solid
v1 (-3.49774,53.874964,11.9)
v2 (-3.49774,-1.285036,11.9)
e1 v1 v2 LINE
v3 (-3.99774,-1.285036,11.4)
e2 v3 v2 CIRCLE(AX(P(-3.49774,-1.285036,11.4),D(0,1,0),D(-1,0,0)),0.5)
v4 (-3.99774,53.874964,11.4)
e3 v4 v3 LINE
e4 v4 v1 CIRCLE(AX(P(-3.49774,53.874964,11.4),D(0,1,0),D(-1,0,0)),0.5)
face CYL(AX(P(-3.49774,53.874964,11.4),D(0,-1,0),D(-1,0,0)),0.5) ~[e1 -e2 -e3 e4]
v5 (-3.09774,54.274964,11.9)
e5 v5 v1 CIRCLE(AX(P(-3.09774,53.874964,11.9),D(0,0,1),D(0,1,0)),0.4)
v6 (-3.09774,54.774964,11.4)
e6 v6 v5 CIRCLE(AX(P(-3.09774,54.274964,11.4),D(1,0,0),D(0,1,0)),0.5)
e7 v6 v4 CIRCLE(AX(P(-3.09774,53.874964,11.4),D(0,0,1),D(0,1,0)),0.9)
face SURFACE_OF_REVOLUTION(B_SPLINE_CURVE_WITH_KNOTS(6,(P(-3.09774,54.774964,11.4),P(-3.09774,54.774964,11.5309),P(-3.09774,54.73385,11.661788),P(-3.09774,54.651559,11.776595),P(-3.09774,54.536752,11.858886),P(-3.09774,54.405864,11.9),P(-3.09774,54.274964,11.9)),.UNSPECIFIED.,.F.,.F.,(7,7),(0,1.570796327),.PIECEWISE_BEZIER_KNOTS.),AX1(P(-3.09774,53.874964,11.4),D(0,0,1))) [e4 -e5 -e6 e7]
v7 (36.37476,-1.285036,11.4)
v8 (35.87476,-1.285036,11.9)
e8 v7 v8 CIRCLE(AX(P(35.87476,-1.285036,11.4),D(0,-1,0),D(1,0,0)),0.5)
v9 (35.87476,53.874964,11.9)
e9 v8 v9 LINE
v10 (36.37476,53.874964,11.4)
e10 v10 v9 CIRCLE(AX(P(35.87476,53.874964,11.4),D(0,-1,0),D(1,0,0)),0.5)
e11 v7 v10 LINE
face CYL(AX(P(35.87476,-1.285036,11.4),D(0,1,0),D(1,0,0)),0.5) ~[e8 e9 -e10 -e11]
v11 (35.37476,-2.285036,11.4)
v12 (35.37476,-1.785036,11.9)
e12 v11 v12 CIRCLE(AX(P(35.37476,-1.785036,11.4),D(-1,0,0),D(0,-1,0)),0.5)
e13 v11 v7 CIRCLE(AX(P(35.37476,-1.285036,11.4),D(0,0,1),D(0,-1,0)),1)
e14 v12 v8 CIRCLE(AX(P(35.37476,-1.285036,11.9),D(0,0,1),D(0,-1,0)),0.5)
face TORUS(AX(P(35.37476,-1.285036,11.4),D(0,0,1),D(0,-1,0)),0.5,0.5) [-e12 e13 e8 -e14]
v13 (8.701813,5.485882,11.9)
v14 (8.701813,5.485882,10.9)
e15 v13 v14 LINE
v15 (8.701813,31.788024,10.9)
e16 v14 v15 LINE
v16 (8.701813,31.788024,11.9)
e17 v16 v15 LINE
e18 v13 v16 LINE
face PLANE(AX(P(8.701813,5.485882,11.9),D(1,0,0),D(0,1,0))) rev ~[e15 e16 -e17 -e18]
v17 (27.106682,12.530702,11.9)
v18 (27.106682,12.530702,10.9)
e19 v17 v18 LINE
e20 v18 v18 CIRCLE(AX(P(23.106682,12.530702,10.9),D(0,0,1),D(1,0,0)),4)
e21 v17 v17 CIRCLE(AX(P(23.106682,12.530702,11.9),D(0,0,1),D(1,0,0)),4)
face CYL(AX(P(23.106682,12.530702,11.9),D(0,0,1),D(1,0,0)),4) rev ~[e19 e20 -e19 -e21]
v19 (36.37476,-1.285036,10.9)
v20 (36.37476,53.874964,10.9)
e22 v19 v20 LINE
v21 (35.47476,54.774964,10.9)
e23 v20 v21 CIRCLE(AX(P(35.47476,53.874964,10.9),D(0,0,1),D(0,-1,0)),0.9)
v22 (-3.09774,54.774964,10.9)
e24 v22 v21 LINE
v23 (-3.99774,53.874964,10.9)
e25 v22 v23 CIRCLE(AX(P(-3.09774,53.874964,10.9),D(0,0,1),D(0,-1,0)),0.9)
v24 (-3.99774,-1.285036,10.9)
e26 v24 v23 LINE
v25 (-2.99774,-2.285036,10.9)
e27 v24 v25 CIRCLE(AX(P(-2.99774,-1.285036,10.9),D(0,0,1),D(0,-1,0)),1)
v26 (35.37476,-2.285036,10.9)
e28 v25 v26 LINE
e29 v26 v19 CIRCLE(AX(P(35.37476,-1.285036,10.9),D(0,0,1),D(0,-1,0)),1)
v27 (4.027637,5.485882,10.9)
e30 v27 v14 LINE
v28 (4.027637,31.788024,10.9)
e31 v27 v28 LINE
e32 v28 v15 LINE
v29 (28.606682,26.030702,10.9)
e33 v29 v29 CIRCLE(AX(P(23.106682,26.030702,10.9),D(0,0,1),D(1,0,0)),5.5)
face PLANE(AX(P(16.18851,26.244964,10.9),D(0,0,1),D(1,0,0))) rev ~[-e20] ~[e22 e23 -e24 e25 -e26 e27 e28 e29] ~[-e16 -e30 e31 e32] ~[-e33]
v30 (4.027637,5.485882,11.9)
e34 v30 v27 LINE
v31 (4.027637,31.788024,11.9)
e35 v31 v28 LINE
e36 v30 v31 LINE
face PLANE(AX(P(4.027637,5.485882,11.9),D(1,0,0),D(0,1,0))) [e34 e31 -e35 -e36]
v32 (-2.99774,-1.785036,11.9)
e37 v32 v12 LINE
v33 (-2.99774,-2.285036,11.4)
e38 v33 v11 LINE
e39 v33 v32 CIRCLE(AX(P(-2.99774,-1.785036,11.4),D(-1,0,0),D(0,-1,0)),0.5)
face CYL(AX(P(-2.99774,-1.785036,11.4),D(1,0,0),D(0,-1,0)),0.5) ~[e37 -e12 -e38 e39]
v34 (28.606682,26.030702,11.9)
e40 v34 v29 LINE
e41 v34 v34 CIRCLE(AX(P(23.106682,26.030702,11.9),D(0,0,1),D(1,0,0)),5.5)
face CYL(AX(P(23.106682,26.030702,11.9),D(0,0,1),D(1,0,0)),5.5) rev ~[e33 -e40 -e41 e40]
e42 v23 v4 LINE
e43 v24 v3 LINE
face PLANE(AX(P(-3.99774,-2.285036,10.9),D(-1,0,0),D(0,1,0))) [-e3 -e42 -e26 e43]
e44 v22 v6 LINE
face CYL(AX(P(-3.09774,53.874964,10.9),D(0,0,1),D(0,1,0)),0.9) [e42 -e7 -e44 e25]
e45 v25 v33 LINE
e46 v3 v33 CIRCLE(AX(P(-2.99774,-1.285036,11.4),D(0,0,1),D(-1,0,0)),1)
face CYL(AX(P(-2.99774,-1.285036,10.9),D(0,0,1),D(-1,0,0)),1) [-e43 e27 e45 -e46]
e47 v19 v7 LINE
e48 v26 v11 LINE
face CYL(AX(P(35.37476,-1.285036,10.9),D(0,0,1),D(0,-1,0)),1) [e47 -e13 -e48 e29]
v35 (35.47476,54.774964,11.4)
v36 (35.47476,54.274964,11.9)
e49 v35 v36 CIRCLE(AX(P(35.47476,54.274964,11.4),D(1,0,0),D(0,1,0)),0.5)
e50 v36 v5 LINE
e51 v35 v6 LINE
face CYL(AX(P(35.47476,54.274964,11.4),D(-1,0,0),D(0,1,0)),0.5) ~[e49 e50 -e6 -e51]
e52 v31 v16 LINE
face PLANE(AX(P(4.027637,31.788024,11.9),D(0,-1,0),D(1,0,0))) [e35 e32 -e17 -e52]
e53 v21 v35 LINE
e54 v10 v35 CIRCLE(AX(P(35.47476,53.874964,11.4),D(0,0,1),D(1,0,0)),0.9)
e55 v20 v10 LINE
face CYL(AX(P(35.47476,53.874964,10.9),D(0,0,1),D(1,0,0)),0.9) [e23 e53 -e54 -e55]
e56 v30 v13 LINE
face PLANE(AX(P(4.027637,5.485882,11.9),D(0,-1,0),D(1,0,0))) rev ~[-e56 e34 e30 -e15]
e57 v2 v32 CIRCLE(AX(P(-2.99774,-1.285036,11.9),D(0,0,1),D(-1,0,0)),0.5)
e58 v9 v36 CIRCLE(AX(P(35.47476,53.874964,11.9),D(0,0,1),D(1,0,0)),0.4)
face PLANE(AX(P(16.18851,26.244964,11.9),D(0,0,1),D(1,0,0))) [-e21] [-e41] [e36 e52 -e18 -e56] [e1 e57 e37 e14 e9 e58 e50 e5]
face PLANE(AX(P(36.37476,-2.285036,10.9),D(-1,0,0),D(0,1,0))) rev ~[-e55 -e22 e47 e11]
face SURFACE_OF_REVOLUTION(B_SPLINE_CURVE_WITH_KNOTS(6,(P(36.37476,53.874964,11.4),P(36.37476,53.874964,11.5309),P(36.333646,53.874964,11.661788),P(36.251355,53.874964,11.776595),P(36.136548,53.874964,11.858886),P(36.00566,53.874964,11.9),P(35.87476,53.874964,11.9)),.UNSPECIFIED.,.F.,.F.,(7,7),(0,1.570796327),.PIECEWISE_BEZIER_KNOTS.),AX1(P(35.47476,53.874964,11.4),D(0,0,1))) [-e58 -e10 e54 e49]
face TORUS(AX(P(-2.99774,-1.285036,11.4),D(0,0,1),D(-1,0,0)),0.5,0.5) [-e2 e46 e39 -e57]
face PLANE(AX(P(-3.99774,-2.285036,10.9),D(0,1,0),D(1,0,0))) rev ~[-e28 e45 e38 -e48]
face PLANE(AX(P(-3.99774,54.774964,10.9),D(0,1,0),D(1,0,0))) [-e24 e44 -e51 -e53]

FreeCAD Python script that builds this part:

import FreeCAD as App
import Part
import Sketcher


def edges_at(feature, points):
    """Names of the edges that pass closest to the given points."""
    edges = feature.Shape.Edges
    near = lambda p: min(range(len(edges)), key=lambda i: edges[i].distToShape(Part.Vertex(*p))[0])
    return sorted({f"Edge{near(p) + 1}" for p in points})

doc = App.newDocument("Part")
body = doc.addObject("PartDesign::Body", "Body")

# Sketch on XY plane
sketch1 = doc.addObject("Sketcher::SketchObject", "Sketch")
body.addObject(sketch1)
sketch1.AttachmentSupport = (doc.XY_Plane, [""])
sketch1.MapMode = "FlatFace"
sketch1.AttachmentOffset = App.Placement(App.Vector(0, 0, 10.9), App.Rotation())
sketch1.addGeometry([
    Part.LineSegment(App.Vector(-4, 55, 0), App.Vector(-4, -2, 0)),
    Part.LineSegment(App.Vector(-4, -2, 0), App.Vector(36, -2, 0)),
    Part.LineSegment(App.Vector(36, -2, 0), App.Vector(36, 55, 0)),
    Part.LineSegment(App.Vector(36, 55, 0), App.Vector(-4, 55, 0)),
], False)
sketch1.addConstraint([
    Sketcher.Constraint("Coincident", 0, 2, 1, 1),
    Sketcher.Constraint("Coincident", 1, 2, 2, 1),
    Sketcher.Constraint("Coincident", 2, 2, 3, 1),
    Sketcher.Constraint("Coincident", 3, 2, 0, 1),
    Sketcher.Constraint("Vertical", 0),
    Sketcher.Constraint("Horizontal", 1),
    Sketcher.Constraint("Vertical", 2),
    Sketcher.Constraint("Horizontal", 3),
    Sketcher.Constraint("DistanceY", 0, 2, 0, 1, 57.06),
    Sketcher.Constraint("DistanceX", 1, 1, 1, 2, 40.3725),
    Sketcher.Constraint("DistanceX", 0, 2, -1, 1, 3.99774),
    Sketcher.Constraint("DistanceY", 0, 2, -1, 1, 2.285036),
])
pad1 = doc.addObject("PartDesign::Pad", "Pad")
body.addObject(pad1)
pad1.Profile = sketch1
pad1.Length = 1

# Sketch on XY plane
sketch2 = doc.addObject("Sketcher::SketchObject", "Sketch001")
body.addObject(sketch2)
sketch2.AttachmentSupport = (doc.XY_Plane, [""])
sketch2.MapMode = "FlatFace"
sketch2.AttachmentOffset = App.Placement(App.Vector(0, 0, 11.9), App.Rotation())
sketch2.addGeometry([
    Part.Circle(App.Vector(23.1, 26, 0), App.Vector(0, 0, 1), 5.5),  # 0
    Part.Circle(App.Vector(23.1, 12.5, 0), App.Vector(0, 0, 1), 4),  # 1
    Part.LineSegment(App.Vector(4, 31.8, 0), App.Vector(4, 5.5, 0)),  # 2
    Part.LineSegment(App.Vector(4, 5.5, 0), App.Vector(8.7, 5.5, 0)),  # 3
    Part.LineSegment(App.Vector(8.7, 5.5, 0), App.Vector(8.7, 31.8, 0)),  # 4
    Part.LineSegment(App.Vector(8.7, 31.8, 0), App.Vector(4, 31.8, 0)),  # 5
], False)
sketch2.addConstraint([
    Sketcher.Constraint("Coincident", 2, 2, 3, 1),
    Sketcher.Constraint("Coincident", 3, 2, 4, 1),
    Sketcher.Constraint("Coincident", 4, 2, 5, 1),
    Sketcher.Constraint("Coincident", 5, 2, 2, 1),
    Sketcher.Constraint("Vertical", 2),
    Sketcher.Constraint("Horizontal", 3),
    Sketcher.Constraint("Vertical", 4),
    Sketcher.Constraint("Horizontal", 5),
    Sketcher.Constraint("Vertical", 0, 3, 1, 3),
    Sketcher.Constraint("Diameter", 0, 11.0),
    Sketcher.Constraint("Diameter", 1, 8.0),
    Sketcher.Constraint("DistanceY", 1, 3, 0, 3, 13.5),
    Sketcher.Constraint("DistanceY", 2, 2, 2, 1, 26.302142),
    Sketcher.Constraint("DistanceX", 3, 1, 3, 2, 4.674176),
    Sketcher.Constraint("DistanceX", -1, 1, 0, 3, 23.106682),
    Sketcher.Constraint("DistanceY", 2, 2, 1, 3, 7.04482),
    Sketcher.Constraint("DistanceX", 3, 2, 1, 3, 14.404869),
    Sketcher.Constraint("DistanceY", -1, 1, 0, 3, 26.030702),
])
pocket1 = doc.addObject("PartDesign::Pocket", "Pocket")
body.addObject(pocket1)
pocket1.Profile = sketch2
pocket1.Length = 2
doc.recompute()

fillet = doc.addObject("PartDesign::Fillet", "Fillet")
body.addObject(fillet)
fillet.Base = (pocket1, edges_at(pocket1, [(-3.998, -2.285, 11.4)]))
fillet.Radius = 1
doc.recompute()

fillet2 = doc.addObject("PartDesign::Fillet", "Fillet001")
body.addObject(fillet2)
fillet2.Base = (fillet, edges_at(fillet, [(36.375, -2.285, 11.4)]))
fillet2.Radius = 1
doc.recompute()

fillet3 = doc.addObject("PartDesign::Fillet", "Fillet002")
body.addObject(fillet3)
fillet3.Base = (fillet2, edges_at(fillet2, [(36.375, 54.775, 11.4)]))
fillet3.Radius = 0.9
doc.recompute()

fillet4 = doc.addObject("PartDesign::Fillet", "Fillet003")
body.addObject(fillet4)
fillet4.Base = (fillet3, edges_at(fillet3, [(-3.998, 54.775, 11.4)]))
fillet4.Radius = 0.9
doc.recompute()

fillet5 = doc.addObject("PartDesign::Fillet", "Fillet004")
body.addObject(fillet5)
fillet5.Base = (fillet4, edges_at(fillet4, [(36.375, 26.295, 11.9)]))
fillet5.Radius = 0.5

doc.recompute()
